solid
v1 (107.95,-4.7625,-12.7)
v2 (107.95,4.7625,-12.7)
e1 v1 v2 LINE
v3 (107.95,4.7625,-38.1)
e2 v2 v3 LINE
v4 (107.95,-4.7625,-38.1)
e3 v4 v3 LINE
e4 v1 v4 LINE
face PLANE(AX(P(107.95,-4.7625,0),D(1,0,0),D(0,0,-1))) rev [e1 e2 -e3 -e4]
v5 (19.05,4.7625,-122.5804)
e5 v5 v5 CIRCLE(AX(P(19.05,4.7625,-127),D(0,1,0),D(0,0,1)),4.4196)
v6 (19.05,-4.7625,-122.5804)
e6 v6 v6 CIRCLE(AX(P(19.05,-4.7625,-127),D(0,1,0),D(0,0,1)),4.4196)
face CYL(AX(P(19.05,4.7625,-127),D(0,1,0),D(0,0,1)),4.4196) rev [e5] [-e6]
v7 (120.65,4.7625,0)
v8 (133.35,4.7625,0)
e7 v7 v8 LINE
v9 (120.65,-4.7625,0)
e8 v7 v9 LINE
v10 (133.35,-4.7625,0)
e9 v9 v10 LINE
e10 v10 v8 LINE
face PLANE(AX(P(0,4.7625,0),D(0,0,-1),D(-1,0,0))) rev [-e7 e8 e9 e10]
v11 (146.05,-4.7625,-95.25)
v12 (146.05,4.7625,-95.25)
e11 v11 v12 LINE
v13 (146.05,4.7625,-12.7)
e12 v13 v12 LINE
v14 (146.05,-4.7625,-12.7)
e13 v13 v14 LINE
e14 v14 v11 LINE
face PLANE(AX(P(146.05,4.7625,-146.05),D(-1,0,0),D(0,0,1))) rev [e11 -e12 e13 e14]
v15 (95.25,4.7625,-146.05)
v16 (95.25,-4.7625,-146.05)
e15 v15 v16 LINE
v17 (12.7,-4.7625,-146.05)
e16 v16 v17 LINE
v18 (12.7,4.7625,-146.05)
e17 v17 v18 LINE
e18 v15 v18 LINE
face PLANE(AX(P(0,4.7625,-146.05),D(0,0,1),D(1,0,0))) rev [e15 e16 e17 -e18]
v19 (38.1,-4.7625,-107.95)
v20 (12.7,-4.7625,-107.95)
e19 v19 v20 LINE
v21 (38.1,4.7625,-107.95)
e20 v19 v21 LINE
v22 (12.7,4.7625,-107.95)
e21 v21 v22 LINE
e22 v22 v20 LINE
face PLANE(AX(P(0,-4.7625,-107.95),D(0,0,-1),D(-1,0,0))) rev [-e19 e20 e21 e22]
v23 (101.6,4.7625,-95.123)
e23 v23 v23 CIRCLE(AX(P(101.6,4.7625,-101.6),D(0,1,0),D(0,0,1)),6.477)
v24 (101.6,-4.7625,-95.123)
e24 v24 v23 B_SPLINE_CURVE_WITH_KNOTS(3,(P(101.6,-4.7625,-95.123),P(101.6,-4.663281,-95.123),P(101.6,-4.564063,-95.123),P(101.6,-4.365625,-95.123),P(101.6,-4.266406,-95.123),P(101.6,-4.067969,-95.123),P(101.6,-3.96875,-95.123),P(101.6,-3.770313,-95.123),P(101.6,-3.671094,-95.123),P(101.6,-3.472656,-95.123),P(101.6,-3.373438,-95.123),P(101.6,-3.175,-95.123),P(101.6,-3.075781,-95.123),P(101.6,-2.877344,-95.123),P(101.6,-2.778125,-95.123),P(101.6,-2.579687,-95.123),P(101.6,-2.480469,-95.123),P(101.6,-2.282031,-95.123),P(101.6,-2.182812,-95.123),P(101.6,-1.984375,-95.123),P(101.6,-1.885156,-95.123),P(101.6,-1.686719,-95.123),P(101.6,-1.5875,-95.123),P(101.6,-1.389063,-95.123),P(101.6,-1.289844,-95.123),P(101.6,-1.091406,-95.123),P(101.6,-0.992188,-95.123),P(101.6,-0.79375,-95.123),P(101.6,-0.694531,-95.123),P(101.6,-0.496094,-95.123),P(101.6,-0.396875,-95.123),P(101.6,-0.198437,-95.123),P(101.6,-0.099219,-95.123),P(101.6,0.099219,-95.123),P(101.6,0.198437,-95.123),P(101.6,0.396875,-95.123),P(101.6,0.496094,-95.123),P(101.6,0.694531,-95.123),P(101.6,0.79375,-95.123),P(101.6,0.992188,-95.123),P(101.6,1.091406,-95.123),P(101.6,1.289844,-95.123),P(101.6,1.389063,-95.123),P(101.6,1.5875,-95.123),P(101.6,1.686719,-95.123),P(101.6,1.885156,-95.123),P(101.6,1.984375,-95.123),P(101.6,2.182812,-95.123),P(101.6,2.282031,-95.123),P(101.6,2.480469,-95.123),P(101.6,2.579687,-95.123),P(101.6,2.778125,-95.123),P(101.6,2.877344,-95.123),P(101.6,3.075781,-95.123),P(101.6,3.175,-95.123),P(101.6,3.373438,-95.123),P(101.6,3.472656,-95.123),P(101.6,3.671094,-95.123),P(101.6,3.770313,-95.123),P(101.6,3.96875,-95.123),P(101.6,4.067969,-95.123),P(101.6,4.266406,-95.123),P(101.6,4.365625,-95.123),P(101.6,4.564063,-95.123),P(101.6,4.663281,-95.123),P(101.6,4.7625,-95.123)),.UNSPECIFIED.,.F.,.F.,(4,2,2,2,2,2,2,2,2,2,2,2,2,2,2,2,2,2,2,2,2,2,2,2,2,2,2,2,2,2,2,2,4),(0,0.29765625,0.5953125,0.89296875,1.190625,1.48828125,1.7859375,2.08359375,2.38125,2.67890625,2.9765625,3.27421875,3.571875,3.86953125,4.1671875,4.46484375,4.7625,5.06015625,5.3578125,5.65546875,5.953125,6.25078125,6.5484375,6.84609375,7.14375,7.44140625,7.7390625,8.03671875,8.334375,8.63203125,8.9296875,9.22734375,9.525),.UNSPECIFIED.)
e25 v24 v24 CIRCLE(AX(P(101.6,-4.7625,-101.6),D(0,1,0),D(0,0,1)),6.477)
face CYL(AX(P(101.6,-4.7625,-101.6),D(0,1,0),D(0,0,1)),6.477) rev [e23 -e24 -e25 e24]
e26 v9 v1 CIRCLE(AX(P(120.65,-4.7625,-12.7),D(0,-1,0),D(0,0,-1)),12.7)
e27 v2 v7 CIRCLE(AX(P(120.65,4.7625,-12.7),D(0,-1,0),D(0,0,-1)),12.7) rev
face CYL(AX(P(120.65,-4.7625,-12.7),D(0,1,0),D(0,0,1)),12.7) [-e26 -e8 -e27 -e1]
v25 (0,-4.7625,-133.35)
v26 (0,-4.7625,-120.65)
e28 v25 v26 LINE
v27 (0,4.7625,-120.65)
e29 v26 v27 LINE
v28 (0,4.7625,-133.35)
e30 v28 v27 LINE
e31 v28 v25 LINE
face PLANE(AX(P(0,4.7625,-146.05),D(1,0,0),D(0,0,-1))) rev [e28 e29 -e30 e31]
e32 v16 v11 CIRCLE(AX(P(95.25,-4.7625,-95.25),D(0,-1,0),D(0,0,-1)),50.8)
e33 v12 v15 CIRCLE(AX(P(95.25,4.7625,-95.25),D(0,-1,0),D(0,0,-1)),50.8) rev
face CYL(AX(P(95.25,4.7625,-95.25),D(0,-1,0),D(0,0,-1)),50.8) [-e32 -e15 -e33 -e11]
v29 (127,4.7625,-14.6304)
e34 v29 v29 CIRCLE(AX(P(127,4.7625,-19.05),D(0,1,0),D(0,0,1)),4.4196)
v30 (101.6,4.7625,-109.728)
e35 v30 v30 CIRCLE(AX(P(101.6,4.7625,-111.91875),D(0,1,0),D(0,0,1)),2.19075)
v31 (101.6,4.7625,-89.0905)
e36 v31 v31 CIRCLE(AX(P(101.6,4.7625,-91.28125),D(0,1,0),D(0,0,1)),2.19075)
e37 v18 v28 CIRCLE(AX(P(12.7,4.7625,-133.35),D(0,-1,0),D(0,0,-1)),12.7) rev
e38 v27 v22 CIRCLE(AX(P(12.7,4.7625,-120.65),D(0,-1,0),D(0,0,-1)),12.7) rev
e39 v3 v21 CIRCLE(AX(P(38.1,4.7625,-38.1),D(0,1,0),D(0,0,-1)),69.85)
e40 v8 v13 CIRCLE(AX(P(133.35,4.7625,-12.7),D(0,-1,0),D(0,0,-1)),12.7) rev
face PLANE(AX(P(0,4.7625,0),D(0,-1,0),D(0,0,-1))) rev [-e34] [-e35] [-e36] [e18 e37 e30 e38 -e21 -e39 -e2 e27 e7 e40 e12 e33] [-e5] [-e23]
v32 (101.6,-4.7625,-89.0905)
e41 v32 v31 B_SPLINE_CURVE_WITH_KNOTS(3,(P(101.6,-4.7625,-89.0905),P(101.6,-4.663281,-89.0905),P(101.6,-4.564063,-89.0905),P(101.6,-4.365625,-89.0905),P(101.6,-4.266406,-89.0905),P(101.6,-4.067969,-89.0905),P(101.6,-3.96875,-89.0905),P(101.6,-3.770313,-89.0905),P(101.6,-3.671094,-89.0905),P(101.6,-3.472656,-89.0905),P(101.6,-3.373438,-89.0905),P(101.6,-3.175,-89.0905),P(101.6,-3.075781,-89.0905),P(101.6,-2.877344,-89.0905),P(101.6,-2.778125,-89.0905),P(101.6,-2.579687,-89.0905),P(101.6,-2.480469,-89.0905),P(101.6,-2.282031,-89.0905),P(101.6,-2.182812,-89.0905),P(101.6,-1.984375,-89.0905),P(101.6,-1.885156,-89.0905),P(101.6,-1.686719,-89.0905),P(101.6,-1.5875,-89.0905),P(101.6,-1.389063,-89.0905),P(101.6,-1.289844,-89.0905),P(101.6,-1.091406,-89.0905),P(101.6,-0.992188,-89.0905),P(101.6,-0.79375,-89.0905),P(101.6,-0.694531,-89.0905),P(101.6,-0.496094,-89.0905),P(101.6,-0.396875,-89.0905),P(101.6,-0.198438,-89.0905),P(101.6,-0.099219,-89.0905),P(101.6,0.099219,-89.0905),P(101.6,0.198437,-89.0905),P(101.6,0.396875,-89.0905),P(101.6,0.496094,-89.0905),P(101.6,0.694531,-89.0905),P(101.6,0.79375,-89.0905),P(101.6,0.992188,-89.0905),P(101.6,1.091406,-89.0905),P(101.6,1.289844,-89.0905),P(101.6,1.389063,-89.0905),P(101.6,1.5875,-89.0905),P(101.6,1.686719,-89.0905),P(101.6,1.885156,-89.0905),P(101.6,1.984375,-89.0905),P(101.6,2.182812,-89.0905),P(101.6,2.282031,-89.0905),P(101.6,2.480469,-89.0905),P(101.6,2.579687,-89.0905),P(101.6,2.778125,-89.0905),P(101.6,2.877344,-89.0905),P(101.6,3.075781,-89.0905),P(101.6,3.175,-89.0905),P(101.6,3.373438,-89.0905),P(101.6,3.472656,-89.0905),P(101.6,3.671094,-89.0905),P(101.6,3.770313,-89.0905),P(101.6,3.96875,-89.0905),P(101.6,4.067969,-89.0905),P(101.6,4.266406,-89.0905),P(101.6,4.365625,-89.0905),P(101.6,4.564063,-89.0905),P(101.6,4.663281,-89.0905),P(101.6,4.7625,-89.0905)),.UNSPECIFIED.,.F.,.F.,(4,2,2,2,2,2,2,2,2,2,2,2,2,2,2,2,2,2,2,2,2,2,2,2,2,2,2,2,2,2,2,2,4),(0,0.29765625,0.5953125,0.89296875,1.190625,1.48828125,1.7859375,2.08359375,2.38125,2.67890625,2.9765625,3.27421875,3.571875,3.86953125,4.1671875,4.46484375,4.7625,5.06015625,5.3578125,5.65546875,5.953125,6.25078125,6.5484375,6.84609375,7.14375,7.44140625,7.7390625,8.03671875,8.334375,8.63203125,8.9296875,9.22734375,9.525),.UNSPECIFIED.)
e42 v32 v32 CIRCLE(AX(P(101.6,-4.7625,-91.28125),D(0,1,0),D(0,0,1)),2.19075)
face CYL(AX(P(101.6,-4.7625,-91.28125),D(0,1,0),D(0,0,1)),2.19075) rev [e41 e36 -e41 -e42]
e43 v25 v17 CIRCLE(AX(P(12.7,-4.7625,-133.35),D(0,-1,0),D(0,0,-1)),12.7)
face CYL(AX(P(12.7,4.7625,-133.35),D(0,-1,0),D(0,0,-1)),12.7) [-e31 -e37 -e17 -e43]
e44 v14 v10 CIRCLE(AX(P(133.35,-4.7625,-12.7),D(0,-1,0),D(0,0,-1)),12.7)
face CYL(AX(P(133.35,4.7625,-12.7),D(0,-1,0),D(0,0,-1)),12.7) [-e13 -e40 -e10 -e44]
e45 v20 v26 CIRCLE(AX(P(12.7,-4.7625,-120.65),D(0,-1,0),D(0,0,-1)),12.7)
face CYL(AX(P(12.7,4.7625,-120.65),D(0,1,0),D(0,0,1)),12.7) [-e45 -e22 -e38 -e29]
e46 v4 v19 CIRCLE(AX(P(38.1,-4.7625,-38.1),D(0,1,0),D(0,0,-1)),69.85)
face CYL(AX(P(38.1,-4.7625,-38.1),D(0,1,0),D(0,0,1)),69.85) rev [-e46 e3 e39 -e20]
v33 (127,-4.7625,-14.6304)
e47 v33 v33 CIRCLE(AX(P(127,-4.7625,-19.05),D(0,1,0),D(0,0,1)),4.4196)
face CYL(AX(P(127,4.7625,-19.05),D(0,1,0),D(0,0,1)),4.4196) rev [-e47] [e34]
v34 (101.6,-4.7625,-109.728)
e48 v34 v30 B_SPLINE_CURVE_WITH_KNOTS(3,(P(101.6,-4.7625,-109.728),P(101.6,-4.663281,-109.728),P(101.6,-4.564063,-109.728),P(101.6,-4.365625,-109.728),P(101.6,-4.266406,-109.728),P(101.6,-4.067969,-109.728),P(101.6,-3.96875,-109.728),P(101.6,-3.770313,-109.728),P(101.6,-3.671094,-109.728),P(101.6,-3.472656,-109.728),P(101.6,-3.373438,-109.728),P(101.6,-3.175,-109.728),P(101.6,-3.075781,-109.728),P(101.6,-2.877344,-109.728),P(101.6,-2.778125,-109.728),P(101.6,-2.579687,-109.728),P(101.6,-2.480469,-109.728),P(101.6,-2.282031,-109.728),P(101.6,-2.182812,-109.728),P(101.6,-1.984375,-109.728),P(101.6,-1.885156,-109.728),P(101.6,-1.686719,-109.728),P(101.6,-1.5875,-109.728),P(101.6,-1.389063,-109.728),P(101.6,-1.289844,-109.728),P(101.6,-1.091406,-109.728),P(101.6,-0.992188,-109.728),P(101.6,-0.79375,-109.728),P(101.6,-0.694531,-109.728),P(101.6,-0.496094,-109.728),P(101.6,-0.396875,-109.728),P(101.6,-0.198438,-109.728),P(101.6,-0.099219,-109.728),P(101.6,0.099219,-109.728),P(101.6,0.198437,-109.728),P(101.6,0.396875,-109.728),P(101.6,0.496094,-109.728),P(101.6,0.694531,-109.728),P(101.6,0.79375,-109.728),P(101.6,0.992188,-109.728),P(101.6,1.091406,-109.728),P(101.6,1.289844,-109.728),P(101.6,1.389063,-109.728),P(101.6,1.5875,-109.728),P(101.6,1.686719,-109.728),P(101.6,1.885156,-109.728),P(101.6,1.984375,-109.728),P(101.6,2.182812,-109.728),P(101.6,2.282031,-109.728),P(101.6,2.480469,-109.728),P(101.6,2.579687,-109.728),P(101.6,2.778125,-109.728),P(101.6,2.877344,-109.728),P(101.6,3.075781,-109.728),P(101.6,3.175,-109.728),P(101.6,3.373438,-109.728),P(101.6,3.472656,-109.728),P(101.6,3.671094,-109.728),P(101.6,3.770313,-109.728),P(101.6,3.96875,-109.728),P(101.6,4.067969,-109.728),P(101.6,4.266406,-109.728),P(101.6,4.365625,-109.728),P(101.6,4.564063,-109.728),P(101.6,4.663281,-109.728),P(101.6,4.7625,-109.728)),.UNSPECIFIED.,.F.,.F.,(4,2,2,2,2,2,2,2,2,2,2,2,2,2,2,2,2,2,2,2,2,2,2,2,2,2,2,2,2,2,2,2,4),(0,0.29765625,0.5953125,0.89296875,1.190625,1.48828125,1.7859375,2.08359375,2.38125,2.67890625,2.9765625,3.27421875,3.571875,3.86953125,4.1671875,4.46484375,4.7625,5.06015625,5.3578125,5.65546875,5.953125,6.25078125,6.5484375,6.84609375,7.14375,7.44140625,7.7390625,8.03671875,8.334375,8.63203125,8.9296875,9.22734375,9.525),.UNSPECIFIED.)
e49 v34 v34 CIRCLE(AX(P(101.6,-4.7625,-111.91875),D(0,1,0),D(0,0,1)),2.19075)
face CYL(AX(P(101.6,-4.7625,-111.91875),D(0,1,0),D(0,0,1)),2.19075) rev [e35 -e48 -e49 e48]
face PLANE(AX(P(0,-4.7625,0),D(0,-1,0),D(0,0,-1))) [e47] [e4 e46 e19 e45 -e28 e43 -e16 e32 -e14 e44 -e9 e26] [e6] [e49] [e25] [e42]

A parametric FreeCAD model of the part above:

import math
import FreeCAD as App
import Part
import Sketcher
from FreeCAD import Vector
Q = App.Units.Quantity


def edges_at(feature, points):
    """Names of the edges that pass closest to the given points."""
    edges = feature.Shape.Edges
    near = lambda p: min(range(len(edges)), key=lambda i: edges[i].distToShape(Part.Vertex(*p))[0])
    return sorted({f"Edge{near(p) + 1}" for p in points})


def add_polygon(sketch, points):
    """Adds a closed chain of lines whose ends are joined by coincident constraints."""
    first, n = sketch.GeometryCount, len(points)
    for a, b in zip(points, points[1:] + points[:1]):
        sketch.addGeometry(Part.LineSegment(App.Vector(*a, 0), App.Vector(*b, 0)), False)
    for i in range(n):
        sketch.addConstraint(Sketcher.Constraint("Coincident", first + i, 2, first + (i + 1) % n, 1))

doc = App.newDocument("Part")
body = doc.addObject("PartDesign::Body", "Body")

sketch1 = body.newObject("Sketcher::SketchObject", "Sketch")
sketch1.AttachmentSupport = (doc.getObject("XZ_Plane"), [""])
sketch1.MapMode = "FlatFace"
add_polygon(sketch1, [(0, -146.05), (0, 0), (146.05, 0), (146.05, -146.05)])
sketch1.addConstraint([
    Sketcher.Constraint("Vertical", 0),
    Sketcher.Constraint("Horizontal", 1),
    Sketcher.Constraint("Vertical", 2),
    Sketcher.Constraint("Horizontal", 3),
    Sketcher.Constraint("Coincident", 0, 2, -1, 1),
    Sketcher.Constraint("Equal", 3, 0),
    Sketcher.Constraint("DistanceX", 1, 1, 1, 2, Q("5.75 in")),
])
pad1 = body.newObject("PartDesign::Pad", "Pad")
pad1.Profile = sketch1
pad1.Length = Q("0.375 in")
pad1.Midplane = True

sketch2 = body.newObject("Sketcher::SketchObject", "Sketch001")
sketch2.AttachmentSupport = (doc.getObject("XZ_Plane"), [""])
sketch2.MapMode = "FlatFace"
sketch2.AttachmentOffset = App.Placement(Vector(0, 0, -0.1875 * 25.4), App.Rotation())
sketch2.addGeometry([
    Part.Circle(Vector(101.6, -101.6, 0), Vector(0, 0, 1), 6.477),
    Part.Circle(Vector(101.6, -91.28125, 0), Vector(0, 0, 1), 2.19075),
    Part.Circle(Vector(101.6, -111.91875, 0), Vector(0, 0, 1), 2.19075),
], False)
sketch2.addConstraint([
    Sketcher.Constraint("Equal", 1, 2),
    Sketcher.Constraint("Vertical", 0, 3, 1, 3),
    Sketcher.Constraint("Vertical", 1, 3, 2, 3),
    Sketcher.Constraint("Diameter", 0, Q("0.51 in")),
    Sketcher.Constraint("DistanceX", -1, 1, 0, 3, Q("4 in")),
    Sketcher.Constraint("DistanceY", 0, 3, -1, 1, Q("4 in")),
    Sketcher.Constraint("Diameter", 1, Q("0.1725 in")),
    Sketcher.Constraint("DistanceY", 1, 3, -1, 1, Q("3.59375 in")),
    Sketcher.Constraint("DistanceY", 2, 3, -1, 1, Q("4.40625 in")),
])
pocket1 = body.newObject("PartDesign::Pocket", "Pocket")
pocket1.Profile = sketch2
pocket1.Type = "ThroughAll"
pocket1.Reversed = True

sketch3 = body.newObject("Sketcher::SketchObject", "Sketch002")
sketch3.AttachmentSupport = (doc.getObject("XZ_Plane"), [""])
sketch3.MapMode = "FlatFace"
sketch3.AttachmentOffset = App.Placement(Vector(0, 0, -0.1875 * 25.4), App.Rotation())
sketch3.addGeometry([
    Part.Circle(Vector(19.05, -127, 0), Vector(0, 0, 1), 4.4196),
    Part.Circle(Vector(127, -19.05, 0), Vector(0, 0, 1), 4.4196),
    Part.Circle(Vector(57.15, -19.05, 0), Vector(0, 0, 1), 4.4196),
    Part.Circle(Vector(19.05, -57.15, 0), Vector(0, 0, 1), 4.4196),
], False)
sketch3.addConstraint([
    Sketcher.Constraint("Equal", 0, 1),
    Sketcher.Constraint("Equal", 1, 2),
    Sketcher.Constraint("Equal", 2, 3),
    Sketcher.Constraint("Horizontal", 1, 3, 2, 3),
    Sketcher.Constraint("Vertical", 0, 3, 3, 3),
    Sketcher.Constraint("Diameter", 0, Q("0.348 in")),
    Sketcher.Constraint("DistanceY", 0, 3, -1, 1, Q("5 in")),
    Sketcher.Constraint("DistanceX", -1, 1, 1, 3, Q("5 in")),
    Sketcher.Constraint("DistanceX", 0, 3, 2, 3, Q("1.5 in")),
    Sketcher.Constraint("DistanceY", 3, 3, 2, 3, Q("1.5 in")),
    Sketcher.Constraint("DistanceX", -1, 1, 0, 3, Q("0.75 in")),
    Sketcher.Constraint("DistanceY", 1, 3, -1, 1, Q("0.75 in")),
])
doc.recompute()
hole = body.newObject("PartDesign::Hole", "Hole")
hole.Profile = sketch3
hole.ThreadType = "None"
hole.Diameter = Q("0.348 in")
hole.DepthType = "ThroughAll"
hole.Reversed = True

sketch4 = body.newObject("Sketcher::SketchObject", "Sketch003")
sketch4.AttachmentSupport = (doc.getObject("XZ_Plane"), [""])
sketch4.MapMode = "FlatFace"
sketch4.AttachmentOffset = App.Placement(Vector(0, 0, -0.1875 * 25.4), App.Rotation())
sketch4.addGeometry([
    Part.LineSegment(Vector(38.1, -107.95, 0), Vector(0, -107.95, 0)),
    Part.LineSegment(Vector(0, -107.95, 0), Vector(0, 0, 0)),
    Part.LineSegment(Vector(0, 0, 0), Vector(107.95, 0, 0)),
    Part.LineSegment(Vector(107.95, 0, 0), Vector(107.95, -38.1, 0)),
    Part.ArcOfCircle(Part.Circle(Vector(38.1, -38.1, 0), Vector(0, 0, 1), 69.85), math.radians(-90), math.radians(0)),
], False)
sketch4.addConstraint([
    Sketcher.Constraint("Coincident", 0, 2, 1, 1),
    Sketcher.Constraint("Coincident", 1, 2, 2, 1),
    Sketcher.Constraint("Coincident", 2, 2, 3, 1),
    Sketcher.Constraint("Tangent", 3, 2, 4, 2),
    Sketcher.Constraint("Tangent", 4, 1, 0, 1),
    Sketcher.Constraint("Horizontal", 0),
    Sketcher.Constraint("Vertical", 1),
    Sketcher.Constraint("Horizontal", 2),
    Sketcher.Constraint("Vertical", 3),
    Sketcher.Constraint("Coincident", 1, 2, -1, 1),
    Sketcher.Constraint("Equal", 2, 1),
    Sketcher.Constraint("Radius", 4, Q("2.75 in")),
    Sketcher.Constraint("DistanceX", 0, 2, 0, 1, Q("1.5 in")),
])
pocket2 = body.newObject("PartDesign::Pocket", "Pocket001")
pocket2.Profile = sketch4
pocket2.Type = "ThroughAll"
pocket2.Reversed = True
doc.recompute()

fillet = body.newObject("PartDesign::Fillet", "Fillet")
fillet.Base = (pocket2, edges_at(pocket2, [
    (0, 0, -107.95),
    (107.95, 0, 0),
    (0, 0, -146.05),
    (146.05, 0, 0),
]))
fillet.Radius = Q("0.5 in")
doc.recompute()

fillet2 = body.newObject("PartDesign::Fillet", "Fillet001")
fillet2.Base = (fillet, edges_at(fillet, [(146.05, 0, -146.05)]))
fillet2.Radius = Q("2 in")

doc.recompute()
